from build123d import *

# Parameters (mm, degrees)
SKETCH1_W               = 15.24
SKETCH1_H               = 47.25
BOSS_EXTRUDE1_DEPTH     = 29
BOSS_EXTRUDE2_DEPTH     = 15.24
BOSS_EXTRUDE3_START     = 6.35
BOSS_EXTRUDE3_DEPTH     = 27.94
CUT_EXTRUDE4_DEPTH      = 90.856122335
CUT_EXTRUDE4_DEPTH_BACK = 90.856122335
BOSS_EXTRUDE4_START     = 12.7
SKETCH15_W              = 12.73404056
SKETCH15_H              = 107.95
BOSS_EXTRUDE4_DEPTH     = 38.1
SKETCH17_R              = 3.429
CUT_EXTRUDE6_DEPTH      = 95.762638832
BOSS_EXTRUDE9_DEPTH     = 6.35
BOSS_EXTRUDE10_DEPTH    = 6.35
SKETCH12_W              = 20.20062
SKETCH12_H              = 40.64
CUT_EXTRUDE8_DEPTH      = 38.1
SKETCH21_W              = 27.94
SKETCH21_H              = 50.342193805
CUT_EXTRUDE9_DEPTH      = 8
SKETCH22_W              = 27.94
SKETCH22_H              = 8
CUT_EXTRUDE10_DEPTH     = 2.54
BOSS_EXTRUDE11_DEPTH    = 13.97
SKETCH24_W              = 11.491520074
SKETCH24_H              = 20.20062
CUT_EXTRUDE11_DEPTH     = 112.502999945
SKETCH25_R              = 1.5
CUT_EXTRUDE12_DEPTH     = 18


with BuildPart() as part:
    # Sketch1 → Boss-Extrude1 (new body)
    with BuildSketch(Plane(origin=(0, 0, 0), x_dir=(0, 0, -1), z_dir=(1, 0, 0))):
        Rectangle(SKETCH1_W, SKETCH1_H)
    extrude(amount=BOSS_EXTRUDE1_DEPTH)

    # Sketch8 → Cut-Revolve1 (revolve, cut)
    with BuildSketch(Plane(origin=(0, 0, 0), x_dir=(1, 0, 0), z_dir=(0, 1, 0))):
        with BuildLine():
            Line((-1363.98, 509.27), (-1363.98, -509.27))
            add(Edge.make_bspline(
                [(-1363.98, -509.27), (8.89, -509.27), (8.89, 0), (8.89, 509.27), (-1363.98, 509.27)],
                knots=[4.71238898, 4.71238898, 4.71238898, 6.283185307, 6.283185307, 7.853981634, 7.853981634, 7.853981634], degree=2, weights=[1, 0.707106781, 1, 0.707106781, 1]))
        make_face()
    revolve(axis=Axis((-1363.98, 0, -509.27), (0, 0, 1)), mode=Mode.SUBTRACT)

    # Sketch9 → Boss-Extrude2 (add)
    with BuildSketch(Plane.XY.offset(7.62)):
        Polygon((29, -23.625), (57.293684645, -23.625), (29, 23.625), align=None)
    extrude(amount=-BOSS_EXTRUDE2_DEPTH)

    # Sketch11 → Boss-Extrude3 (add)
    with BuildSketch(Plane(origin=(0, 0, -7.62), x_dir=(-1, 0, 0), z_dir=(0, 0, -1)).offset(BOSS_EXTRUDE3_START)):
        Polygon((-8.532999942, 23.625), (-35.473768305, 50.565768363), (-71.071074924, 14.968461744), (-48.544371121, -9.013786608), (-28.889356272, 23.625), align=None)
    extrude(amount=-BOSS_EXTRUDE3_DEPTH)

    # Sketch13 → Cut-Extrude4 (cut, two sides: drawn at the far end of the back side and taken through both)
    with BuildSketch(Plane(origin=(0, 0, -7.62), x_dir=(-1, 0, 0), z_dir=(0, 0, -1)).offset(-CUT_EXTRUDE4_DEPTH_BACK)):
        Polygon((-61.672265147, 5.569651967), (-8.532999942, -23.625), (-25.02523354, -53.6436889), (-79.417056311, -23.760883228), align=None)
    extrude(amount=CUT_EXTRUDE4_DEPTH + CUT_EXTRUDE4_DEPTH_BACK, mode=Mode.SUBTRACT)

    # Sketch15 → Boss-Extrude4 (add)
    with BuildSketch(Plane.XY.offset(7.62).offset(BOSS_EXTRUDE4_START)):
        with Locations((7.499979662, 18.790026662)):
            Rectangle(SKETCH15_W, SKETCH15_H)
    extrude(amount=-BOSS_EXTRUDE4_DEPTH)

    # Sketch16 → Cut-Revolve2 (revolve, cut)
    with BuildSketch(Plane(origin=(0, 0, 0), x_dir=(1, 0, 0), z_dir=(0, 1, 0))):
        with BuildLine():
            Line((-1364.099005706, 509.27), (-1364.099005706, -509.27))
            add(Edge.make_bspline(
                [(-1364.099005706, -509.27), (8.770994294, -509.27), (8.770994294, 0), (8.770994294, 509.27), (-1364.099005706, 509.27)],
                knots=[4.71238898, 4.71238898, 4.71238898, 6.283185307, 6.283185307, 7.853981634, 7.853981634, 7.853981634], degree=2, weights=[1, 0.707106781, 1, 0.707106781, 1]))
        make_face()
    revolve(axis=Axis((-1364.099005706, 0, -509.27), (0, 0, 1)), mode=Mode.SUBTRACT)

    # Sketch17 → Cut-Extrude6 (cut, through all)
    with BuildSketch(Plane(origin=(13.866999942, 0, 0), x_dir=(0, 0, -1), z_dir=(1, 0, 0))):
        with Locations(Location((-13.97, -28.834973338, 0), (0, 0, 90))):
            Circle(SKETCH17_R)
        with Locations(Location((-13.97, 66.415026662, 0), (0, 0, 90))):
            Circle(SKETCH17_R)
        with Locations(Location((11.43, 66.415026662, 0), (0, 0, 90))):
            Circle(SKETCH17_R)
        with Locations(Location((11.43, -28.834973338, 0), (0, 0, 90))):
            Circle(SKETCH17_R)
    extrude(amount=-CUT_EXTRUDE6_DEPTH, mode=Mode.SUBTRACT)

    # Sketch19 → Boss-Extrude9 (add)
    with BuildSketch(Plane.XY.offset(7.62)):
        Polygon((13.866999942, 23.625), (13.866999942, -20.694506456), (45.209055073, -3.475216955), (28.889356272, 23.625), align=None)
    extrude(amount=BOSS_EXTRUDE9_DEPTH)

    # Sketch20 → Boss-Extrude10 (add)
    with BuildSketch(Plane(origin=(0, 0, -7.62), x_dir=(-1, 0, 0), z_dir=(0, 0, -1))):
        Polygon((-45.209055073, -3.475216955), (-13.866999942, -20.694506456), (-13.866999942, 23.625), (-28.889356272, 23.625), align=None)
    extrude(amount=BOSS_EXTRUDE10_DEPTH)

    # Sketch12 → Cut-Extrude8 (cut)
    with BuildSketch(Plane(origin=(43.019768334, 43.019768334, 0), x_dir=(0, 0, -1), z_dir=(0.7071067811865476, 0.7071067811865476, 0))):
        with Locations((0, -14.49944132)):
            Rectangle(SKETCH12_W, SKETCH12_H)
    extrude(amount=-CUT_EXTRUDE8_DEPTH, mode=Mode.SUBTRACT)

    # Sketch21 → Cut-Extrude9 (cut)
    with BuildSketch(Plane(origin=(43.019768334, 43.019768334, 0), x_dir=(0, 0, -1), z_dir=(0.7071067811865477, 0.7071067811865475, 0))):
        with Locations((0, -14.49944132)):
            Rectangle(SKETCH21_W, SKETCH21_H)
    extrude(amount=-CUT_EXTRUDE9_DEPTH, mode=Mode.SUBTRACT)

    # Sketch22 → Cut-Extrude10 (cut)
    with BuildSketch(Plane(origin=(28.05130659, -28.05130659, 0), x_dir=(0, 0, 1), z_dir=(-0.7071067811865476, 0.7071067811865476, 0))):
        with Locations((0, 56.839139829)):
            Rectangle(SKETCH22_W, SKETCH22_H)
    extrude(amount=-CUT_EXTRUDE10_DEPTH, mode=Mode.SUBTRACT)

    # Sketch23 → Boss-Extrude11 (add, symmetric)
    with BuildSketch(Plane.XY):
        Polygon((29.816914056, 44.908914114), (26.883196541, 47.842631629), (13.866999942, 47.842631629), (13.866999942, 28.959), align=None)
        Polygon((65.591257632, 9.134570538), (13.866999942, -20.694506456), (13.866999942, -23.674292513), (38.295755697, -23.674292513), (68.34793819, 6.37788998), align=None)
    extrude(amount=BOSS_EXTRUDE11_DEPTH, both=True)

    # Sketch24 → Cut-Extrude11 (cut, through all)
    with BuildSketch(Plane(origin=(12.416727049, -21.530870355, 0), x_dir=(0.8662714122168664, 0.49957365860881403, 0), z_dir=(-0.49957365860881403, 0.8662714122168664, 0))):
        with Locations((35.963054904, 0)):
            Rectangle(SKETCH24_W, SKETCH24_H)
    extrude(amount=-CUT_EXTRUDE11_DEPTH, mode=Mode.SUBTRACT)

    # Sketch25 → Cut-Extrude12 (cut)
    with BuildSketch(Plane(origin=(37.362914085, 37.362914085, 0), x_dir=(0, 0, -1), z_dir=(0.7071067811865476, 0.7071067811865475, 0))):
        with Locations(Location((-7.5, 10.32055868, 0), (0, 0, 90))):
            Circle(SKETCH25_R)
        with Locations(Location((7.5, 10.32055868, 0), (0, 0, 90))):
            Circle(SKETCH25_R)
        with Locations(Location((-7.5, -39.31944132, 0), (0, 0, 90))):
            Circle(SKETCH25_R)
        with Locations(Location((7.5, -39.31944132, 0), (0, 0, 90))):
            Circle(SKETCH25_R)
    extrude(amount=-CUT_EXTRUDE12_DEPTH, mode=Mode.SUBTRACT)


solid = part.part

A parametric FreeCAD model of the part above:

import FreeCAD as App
import Part
import Sketcher
from FreeCAD import Vector
Q = App.Units.Quantity


def add_polygon(sketch, points):
    """Adds a closed chain of lines whose ends are joined by coincident constraints."""
    first, n = sketch.GeometryCount, len(points)
    for a, b in zip(points, points[1:] + points[:1]):
        sketch.addGeometry(Part.LineSegment(App.Vector(*a, 0), App.Vector(*b, 0)), False)
    for i in range(n):
        sketch.addConstraint(Sketcher.Constraint("Coincident", first + i, 2, first + (i + 1) % n, 1))

doc = App.newDocument("Part")
body = doc.addObject("PartDesign::Body", "Body")

# Sketch on YZ plane
sketch1 = body.newObject("Sketcher::SketchObject", "Sketch")
sketch1.AttachmentSupport = (doc.getObject("YZ_Plane"), [""])
sketch1.MapMode = "FlatFace"
add_polygon(sketch1, [(24, 8), (-24, 8), (-24, -8), (24, -8)])  # lines 0-3
sketch1.addConstraint([
    Sketcher.Constraint("Horizontal", 0),
    Sketcher.Constraint("Vertical", 1),
    Sketcher.Constraint("Horizontal", 2),
    Sketcher.Constraint("Vertical", 3),
    Sketcher.Constraint("Symmetric", 0, 2, 2, 2, -1, 1),
    Sketcher.Constraint("DistanceY", 1, 2, 1, 1, Q("0.6 in")),
    Sketcher.Constraint("DistanceX", 0, 2, 0, 1, Q("47.25 mm")),
])
pad1 = body.newObject("PartDesign::Pad", "Pad")
pad1.Profile = sketch1
pad1.Length = 29

# Sketch on XZ plane
sketch2 = body.newObject("Sketcher::SketchObject", "Sketch001")
sketch2.AttachmentSupport = (doc.getObject("XZ_Plane"), [""])
sketch2.MapMode = "FlatFace"
sketch2.addGeometry([
    Part.LineSegment(Vector(-1363.98, -509.27, 0), Vector(-1363.98, 509.27, 0)),
    Part.BSplineCurve([Vector(-1363.98, 509.27, 0), Vector(8.89, 509.27, 0), Vector(8.89, 0, 0), Vector(8.89, -509.27, 0), Vector(-1363.98, -509.27, 0)], [3, 2, 3], [4.71238898, 6.283185307, 7.853981634], False, 2, [1, 0.707106781, 1, 0.707106781, 1], False),
], False)
sketch2.addGeometry(Part.LineSegment(Vector(-1363.98, -509.27, 0), Vector(-1363.98, 509.27, 0)), True)  # axis
sketch2.addConstraint([
    Sketcher.Constraint("Block", 1),
    Sketcher.Constraint("Coincident", 0, 1, 1, 2),
    Sketcher.Constraint("Coincident", 1, 1, 0, 2),
    Sketcher.Constraint("Vertical", 2),
    Sketcher.Constraint("Coincident", 2, 1, 0, 1),
    Sketcher.Constraint("Equal", 0, 2),
])
groove = body.newObject("PartDesign::Groove", "Groove")
groove.Profile = sketch2
groove.ReferenceAxis = (sketch2, ["Axis0"])
groove.Angle = 360

# Sketch on XY plane
sketch3 = body.newObject("Sketcher::SketchObject", "Sketch002")
sketch3.AttachmentSupport = (doc.getObject("XY_Plane"), [""])
sketch3.MapMode = "FlatFace"
sketch3.AttachmentOffset = App.Placement(Vector(0, 0, 0.3 * 25.4), App.Rotation())
add_polygon(sketch3, [(29, -24), (57, -24), (29, 24)])  # lines 0-2
sketch3.addConstraint([
    Sketcher.Constraint("Horizontal", 0),
    Sketcher.Constraint("Vertical", 2),
    Sketcher.Constraint("DistanceY", 2, 2, 2, 1, Q("47.25 mm")),
    Sketcher.Constraint("DistanceY", 0, 2, -1, 1, Q("23.625 mm")),
    Sketcher.Constraint("DistanceX", -1, 1, 1, 2, Q("29 mm")),
    Sketcher.Constraint("DistanceX", 0, 1, 0, 2, Q("28.293685 mm")),
])
pad2 = body.newObject("PartDesign::Pad", "Pad001")
pad2.Profile = sketch3
pad2.Length = Q("0.6 in")
pad2.Reversed = True

# Sketch on XY plane
sketch4 = body.newObject("Sketcher::SketchObject", "Sketch003")
sketch4.AttachmentSupport = (doc.getObject("XY_Plane"), [""])
sketch4.MapMode = "FlatFace"
sketch4.AttachmentOffset = App.Placement(Vector(0, 0, -0.55 * 25.4), App.Rotation())
add_polygon(sketch4, [(9, 24), (35, 51), (71, 15), (49, -9), (29, 24)])  # lines 0-4
sketch4.addConstraint([
    Sketcher.Constraint("Horizontal", 4),
    Sketcher.Constraint("Perpendicular", 0, 1),
    Sketcher.Constraint("Equal", 0, 3),
    Sketcher.Constraint("Angle", 0, Q("45 deg")),
    Sketcher.Constraint("Distance", 0, Q("1.5 in")),
    Sketcher.Constraint("DistanceY", -1, 1, 3, 2, Q("23.625 mm")),
    Sketcher.Constraint("DistanceX", -1, 1, 4, 2, Q("8.533 mm")),
    Sketcher.Constraint("DistanceX", 4, 2, 4, 1, Q("20.356356 mm")),
    Sketcher.Constraint("DistanceY", -1, 1, 1, 2, Q("14.968462 mm")),
    Sketcher.Constraint("DistanceX", -1, 1, 2, 2, Q("48.544371 mm")),
])
pad3 = body.newObject("PartDesign::Pad", "Pad002")
pad3.Profile = sketch4
pad3.Length = Q("1.1 in")

# Sketch on XY plane
sketch5 = body.newObject("Sketcher::SketchObject", "Sketch004")
sketch5.AttachmentSupport = (doc.getObject("XY_Plane"), [""])
sketch5.MapMode = "FlatFace"
sketch5.AttachmentOffset = App.Placement(Vector(0, 0, -0.3 * 25.4), App.Rotation())
add_polygon(sketch5, [(9, -24), (62, 6), (79, -24), (25, -54)])  # lines 0-3
sketch5.addConstraint([
    Sketcher.Constraint("Parallel", 0, 2),
    Sketcher.Constraint("Perpendicular", 2, 3),
    Sketcher.Constraint("DistanceX", -1, 1, 3, 2, Q("8.533 mm")),
    Sketcher.Constraint("DistanceY", 3, 2, -1, 1, Q("23.625 mm")),
    Sketcher.Constraint("Distance", 2, Q("62.060071 mm")),
    Sketcher.Constraint("DistanceY", -1, 1, 0, 2, Q("5.569652 mm")),
    Sketcher.Constraint("DistanceY", 2, 2, -1, 1, Q("53.643689 mm")),
    Sketcher.Constraint("DistanceX", 0, 2, 1, 2, Q("17.744791 mm")),
])
pocket1 = body.newObject("PartDesign::Pocket", "Pocket")
pocket1.Profile = sketch5
pocket1.Type = "ThroughAll"
pocket1.Midplane = True

# Sketch on XY plane
sketch6 = body.newObject("Sketcher::SketchObject", "Sketch005")
sketch6.AttachmentSupport = (doc.getObject("XY_Plane"), [""])
sketch6.MapMode = "FlatFace"
sketch6.AttachmentOffset = App.Placement(Vector(0, 0, 0.8 * 25.4), App.Rotation())
add_polygon(sketch6, [(1, 73), (1, -35), (14, -35), (14, 73)])  # lines 0-3
sketch6.addConstraint([
    Sketcher.Constraint("Vertical", 0),
    Sketcher.Constraint("Horizontal", 1),
    Sketcher.Constraint("Vertical", 2),
    Sketcher.Constraint("Horizontal", 3),
    Sketcher.Constraint("DistanceY", 0, 2, 0, 1, Q("4.25 in")),
    Sketcher.Constraint("DistanceX", 1, 1, 1, 2, Q("12.734041 mm")),
    Sketcher.Constraint("DistanceX", -1, 1, 1, 2, Q("13.867 mm")),
    Sketcher.Constraint("DistanceY", 0, 2, -1, 1, Q("35.184973 mm")),
])
pad4 = body.newObject("PartDesign::Pad", "Pad003")
pad4.Profile = sketch6
pad4.Length = Q("1.5 in")
pad4.Reversed = True

# Sketch on XZ plane
sketch7 = body.newObject("Sketcher::SketchObject", "Sketch006")
sketch7.AttachmentSupport = (doc.getObject("XZ_Plane"), [""])
sketch7.MapMode = "FlatFace"
sketch7.addGeometry([
    Part.LineSegment(Vector(-1364.099006, -509.27, 0), Vector(-1364.099006, 509.27, 0)),
    Part.BSplineCurve([Vector(-1364.099006, 509.27, 0), Vector(8.770994, 509.27, 0), Vector(8.770994, 0, 0), Vector(8.770994, -509.27, 0), Vector(-1364.099006, -509.27, 0)], [3, 2, 3], [4.71238898, 6.283185307, 7.853981634], False, 2, [1, 0.707106781, 1, 0.707106781, 1], False),
], False)
sketch7.addGeometry(Part.LineSegment(Vector(-1364.099006, -509.27, 0), Vector(-1364.099006, 509.27, 0)), True)  # axis
sketch7.addConstraint([
    Sketcher.Constraint("Block", 1),
    Sketcher.Constraint("Coincident", 0, 1, 1, 2),
    Sketcher.Constraint("Coincident", 1, 1, 0, 2),
    Sketcher.Constraint("Vertical", 2),
    Sketcher.Constraint("Coincident", 2, 1, 0, 1),
    Sketcher.Constraint("Equal", 0, 2),
])
groove2 = body.newObject("PartDesign::Groove", "Groove001")
groove2.Profile = sketch7
groove2.ReferenceAxis = (sketch7, ["Axis0"])
groove2.Angle = 360

# Sketch on YZ plane
sketch8 = body.newObject("Sketcher::SketchObject", "Sketch007")
sketch8.AttachmentSupport = (doc.getObject("YZ_Plane"), [""])
sketch8.MapMode = "FlatFace"
sketch8.AttachmentOffset = App.Placement(Vector(0, 0, 13.867), App.Rotation())
sketch8.addGeometry([
    Part.Circle(Vector(-28.8, 14, 0), Vector(0, 0, 1), 3.4),
    Part.Circle(Vector(66.4, 14, 0), Vector(0, 0, 1), 3.4),
    Part.Circle(Vector(66.4, -11.4, 0), Vector(0, 0, 1), 3.4),
    Part.Circle(Vector(-28.8, -11.4, 0), Vector(0, 0, 1), 3.4),
], False)
sketch8.addConstraint([
    Sketcher.Constraint("Equal", 0, 1),
    Sketcher.Constraint("Equal", 1, 2),
    Sketcher.Constraint("Equal", 2, 3),
    Sketcher.Constraint("Horizontal", 0, 3, 1, 3),
    Sketcher.Constraint("Horizontal", 2, 3, 3, 3),
    Sketcher.Constraint("Vertical", 1, 3, 2, 3),
    Sketcher.Constraint("Vertical", 0, 3, 3, 3),
    Sketcher.Constraint("Diameter", 0, Q("0.27 in")),
    Sketcher.Constraint("DistanceY", 2, 3, 1, 3, Q("1 in")),
    Sketcher.Constraint("DistanceY", -1, 1, 0, 3, Q("0.55 in")),
    Sketcher.Constraint("DistanceX", 0, 3, 1, 3, Q("3.75 in")),
    Sketcher.Constraint("DistanceX", 0, 3, -1, 1, Q("28.834973 mm")),
])
pocket2 = body.newObject("PartDesign::Pocket", "Pocket001")
pocket2.Profile = sketch8
pocket2.Type = "ThroughAll"

# Sketch on XY plane
sketch9 = body.newObject("Sketcher::SketchObject", "Sketch008")
sketch9.AttachmentSupport = (doc.getObject("XY_Plane"), [""])
sketch9.MapMode = "FlatFace"
sketch9.AttachmentOffset = App.Placement(Vector(0, 0, 0.3 * 25.4), App.Rotation())
add_polygon(sketch9, [(14, 24), (14, -21), (45, -3), (29, 24)])  # lines 0-3
sketch9.addConstraint([
    Sketcher.Constraint("Vertical", 0),
    Sketcher.Constraint("Horizontal", 3),
    Sketcher.Constraint("Distance", 2, Q("31.634701 mm")),
    Sketcher.Constraint("DistanceX", -1, 1, 0, 2, Q("13.867 mm")),
    Sketcher.Constraint("DistanceY", -1, 1, 2, 2, Q("23.625 mm")),
    Sketcher.Constraint("DistanceX", 2, 2, 1, 2, Q("16.319699 mm")),
    Sketcher.Constraint("Distance", 1, Q("35.76071 mm")),
    Sketcher.Constraint("DistanceX", 3, 2, 3, 1, Q("15.022356 mm")),
])
pad5 = body.newObject("PartDesign::Pad", "Pad004")
pad5.Profile = sketch9
pad5.Length = Q("0.25 in")

# Sketch on XY plane
sketch10 = body.newObject("Sketcher::SketchObject", "Sketch009")
sketch10.AttachmentSupport = (doc.getObject("XY_Plane"), [""])
sketch10.MapMode = "FlatFace"
sketch10.AttachmentOffset = App.Placement(Vector(0, 0, -0.3 * 25.4), App.Rotation())
add_polygon(sketch10, [(45, -3), (14, -21), (14, 24), (29, 24)])  # lines 0-3
sketch10.addConstraint([
    Sketcher.Constraint("Vertical", 1),
    Sketcher.Constraint("Horizontal", 2),
    Sketcher.Constraint("Distance", 3, Q("31.634701 mm")),
    Sketcher.Constraint("DistanceX", -1, 1, 0, 2, Q("13.867 mm")),
    Sketcher.Constraint("DistanceY", -1, 1, 1, 2, Q("23.625 mm")),
    Sketcher.Constraint("DistanceX", 2, 2, 3, 2, Q("16.319699 mm")),
    Sketcher.Constraint("Distance", 0, Q("35.76071 mm")),
    Sketcher.Constraint("DistanceX", 2, 1, 2, 2, Q("15.022356 mm")),
])
pad6 = body.newObject("PartDesign::Pad", "Pad005")
pad6.Profile = sketch10
pad6.Length = Q("0.25 in")
pad6.Reversed = True

# Sketch on an angled plane
sketch11 = body.newObject("Sketcher::SketchObject", "Sketch010")
sketch11.Placement = App.Placement(Vector(43.019768, 43.019768, 0), App.Rotation(Vector(0, 0, -1), Vector(-0.707106781, 0.707106781, 0), Vector(0.707106781, 0.707106781, 0), "ZXY"))
add_polygon(sketch11, [(-10, 6), (-10, -35), (10, -35), (10, 6)])  # lines 0-3
sketch11.addConstraint([
    Sketcher.Constraint("Vertical", 0),
    Sketcher.Constraint("Horizontal", 1),
    Sketcher.Constraint("Vertical", 2),
    Sketcher.Constraint("Horizontal", 3),
    Sketcher.Constraint("DistanceY", 0, 2, 0, 1, Q("1.6 in")),
    Sketcher.Constraint("DistanceX", 1, 1, 1, 2, Q("0.7953 in")),
    Sketcher.Constraint("DistanceX", 0, 2, -1, 1, Q("10.10031 mm")),
    Sketcher.Constraint("DistanceY", 0, 2, -1, 1, Q("34.819441 mm")),
])
pocket3 = body.newObject("PartDesign::Pocket", "Pocket002")
pocket3.Profile = sketch11
pocket3.Length = Q("1.5 in")

# Sketch on an angled plane
sketch12 = body.newObject("Sketcher::SketchObject", "Sketch011")
sketch12.Placement = App.Placement(Vector(43.019768, 43.019768, 0), App.Rotation(Vector(0, 0, -1), Vector(-0.707106781, 0.707106781, 0), Vector(0.707106781, 0.707106781, 0), "ZXY"))
add_polygon(sketch12, [(-14, 11), (-14, -40), (14, -40), (14, 11)])  # lines 0-3
sketch12.addConstraint([
    Sketcher.Constraint("Vertical", 0),
    Sketcher.Constraint("Horizontal", 1),
    Sketcher.Constraint("Vertical", 2),
    Sketcher.Constraint("Horizontal", 3),
    Sketcher.Constraint("DistanceX", 1, 1, 1, 2, Q("1.1 in")),
    Sketcher.Constraint("DistanceX", 0, 2, -1, 1, Q("0.55 in")),
    Sketcher.Constraint("DistanceY", 0, 2, 0, 1, Q("50.342194 mm")),
    Sketcher.Constraint("DistanceY", 0, 2, -1, 1, Q("39.670538 mm")),
])
pocket4 = body.newObject("PartDesign::Pocket", "Pocket003")
pocket4.Profile = sketch12
pocket4.Length = 8

# Sketch on an angled plane
sketch13 = body.newObject("Sketcher::SketchObject", "Sketch012")
sketch13.Placement = App.Placement(Vector(28.051307, -28.051307, 0), App.Rotation(Vector(0, 0, 1), Vector(0.707106781, 0.707106781, 0), Vector(-0.707106781, 0.707106781, 0), "ZXY"))
add_polygon(sketch13, [(-14, 61), (-14, 53), (14, 53), (14, 61)])  # lines 0-3
sketch13.addConstraint([
    Sketcher.Constraint("Vertical", 0),
    Sketcher.Constraint("Horizontal", 1),
    Sketcher.Constraint("Vertical", 2),
    Sketcher.Constraint("Horizontal", 3),
    Sketcher.Constraint("DistanceX", 1, 1, 1, 2, Q("1.1 in")),
    Sketcher.Constraint("DistanceX", 0, 2, -1, 1, Q("0.55 in")),
    Sketcher.Constraint("DistanceY", 0, 2, 0, 1, Q("8 mm")),
    Sketcher.Constraint("DistanceY", -1, 1, 0, 2, Q("52.83914 mm")),
])
pocket5 = body.newObject("PartDesign::Pocket", "Pocket004")
pocket5.Profile = sketch13
pocket5.Length = Q("0.1 in")

# Sketch on XY plane
sketch14 = body.newObject("Sketcher::SketchObject", "Sketch013")
sketch14.AttachmentSupport = (doc.getObject("XY_Plane"), [""])
sketch14.MapMode = "FlatFace"
add_polygon(sketch14, [(29.8, 44.9), (26.9, 47.8), (13.9, 47.8), (13.9, 29)])  # lines 0-3
add_polygon(sketch14, [(65.6, 9.1), (13.9, -20.7), (13.9, -23.7), (38.3, -23.7), (68.3, 6.4)])  # lines 4-8
sketch14.addConstraint([
    Sketcher.Constraint("Horizontal", 1),
    Sketcher.Constraint("Vertical", 2),
    Sketcher.Constraint("Vertical", 5),
    Sketcher.Constraint("Horizontal", 6),
    Sketcher.Constraint("Perpendicular", 0, 3),
    Sketcher.Constraint("Parallel", 3, 7),
    Sketcher.Constraint("Perpendicular", 7, 8),
    Sketcher.Constraint("Vertical", 2, 2, 4, 2),
    Sketcher.Constraint("Angle", 0, Q("135 deg")),
    Sketcher.Constraint("DistanceY", 2, 2, 2, 1, Q("18.883632 mm")),
    Sketcher.Constraint("DistanceX", -1, 1, 1, 2, Q("13.867 mm")),
    Sketcher.Constraint("DistanceY", -1, 1, 2, 2, Q("28.959 mm")),
    Sketcher.Constraint("DistanceX", 6, 2, 8, 2, Q("27.295502 mm")),
    Sketcher.Constraint("DistanceX", 1, 2, 1, 1, Q("13.016197 mm")),
    Sketcher.Constraint("DistanceX", 6, 1, 6, 2, Q("24.428756 mm")),
    Sketcher.Constraint("DistanceY", 5, 2, 5, 1, Q("2.979786 mm")),
    Sketcher.Constraint("DistanceX", -1, 1, 7, 2, Q("68.347938 mm")),
    Sketcher.Constraint("DistanceY", -1, 1, 7, 2, Q("6.37789 mm")),
])
pad7 = body.newObject("PartDesign::Pad", "Pad006")
pad7.Profile = sketch14
pad7.Length = Q("1.1 in")
pad7.Midplane = True

# Sketch on an angled plane
sketch15 = body.newObject("Sketcher::SketchObject", "Sketch014")
sketch15.Placement = App.Placement(Vector(12.416727, -21.53087, 0), App.Rotation(Vector(0.866271412, 0.499573659, 0), Vector(0, 0, -1), Vector(-0.499573659, 0.866271412, 0), "ZXY"))
add_polygon(sketch15, [(30, 10), (30, -10), (42, -10), (42, 10)])  # lines 0-3
sketch15.addConstraint([
    Sketcher.Constraint("Vertical", 0),
    Sketcher.Constraint("Horizontal", 1),
    Sketcher.Constraint("Vertical", 2),
    Sketcher.Constraint("Horizontal", 3),
    Sketcher.Constraint("DistanceY", 0, 2, 0, 1, Q("0.7953 in")),
    Sketcher.Constraint("DistanceX", 1, 1, 1, 2, Q("11.49152 mm")),
    Sketcher.Constraint("DistanceY", 0, 2, -1, 1, Q("10.10031 mm")),
    Sketcher.Constraint("DistanceX", -1, 1, 0, 2, Q("30.217295 mm")),
])
pocket6 = body.newObject("PartDesign::Pocket", "Pocket005")
pocket6.Profile = sketch15
pocket6.Type = "ThroughAll"

# Sketch on an angled plane
sketch16 = body.newObject("Sketcher::SketchObject", "Sketch015")
sketch16.Placement = App.Placement(Vector(37.362914, 37.362914, 0), App.Rotation(Vector(0, 0, -1), Vector(-0.707106781, 0.707106781, 0), Vector(0.707106781, 0.707106781, 0), "ZXY"))
sketch16.addGeometry([
    Part.Circle(Vector(-7.5, 10.3, 0), Vector(0, 0, 1), 1.5),
    Part.Circle(Vector(7.5, 10.3, 0), Vector(0, 0, 1), 1.5),
    Part.Circle(Vector(-7.5, -39.3, 0), Vector(0, 0, 1), 1.5),
    Part.Circle(Vector(7.5, -39.3, 0), Vector(0, 0, 1), 1.5),
], False)
sketch16.addConstraint([
    Sketcher.Constraint("Equal", 0, 1),
    Sketcher.Constraint("Equal", 1, 2),
    Sketcher.Constraint("Equal", 2, 3),
    Sketcher.Constraint("Symmetric", 0, 3, 1, 3, -2),
    Sketcher.Constraint("Symmetric", 2, 3, 3, 3, -2),
    Sketcher.Constraint("Vertical", 0, 3, 2, 3),
    Sketcher.Constraint("Diameter", 0, Q("3 mm")),
    Sketcher.Constraint("DistanceX", 0, 3, -1, 1, Q("7.5 mm")),
    Sketcher.Constraint("DistanceY", 2, 3, 0, 3, Q("49.64 mm")),
    Sketcher.Constraint("DistanceY", -1, 1, 0, 3, Q("10.320559 mm")),
])
pocket7 = body.newObject("PartDesign::Pocket", "Pocket006")
pocket7.Profile = sketch16
pocket7.Length = 18

doc.recompute()
